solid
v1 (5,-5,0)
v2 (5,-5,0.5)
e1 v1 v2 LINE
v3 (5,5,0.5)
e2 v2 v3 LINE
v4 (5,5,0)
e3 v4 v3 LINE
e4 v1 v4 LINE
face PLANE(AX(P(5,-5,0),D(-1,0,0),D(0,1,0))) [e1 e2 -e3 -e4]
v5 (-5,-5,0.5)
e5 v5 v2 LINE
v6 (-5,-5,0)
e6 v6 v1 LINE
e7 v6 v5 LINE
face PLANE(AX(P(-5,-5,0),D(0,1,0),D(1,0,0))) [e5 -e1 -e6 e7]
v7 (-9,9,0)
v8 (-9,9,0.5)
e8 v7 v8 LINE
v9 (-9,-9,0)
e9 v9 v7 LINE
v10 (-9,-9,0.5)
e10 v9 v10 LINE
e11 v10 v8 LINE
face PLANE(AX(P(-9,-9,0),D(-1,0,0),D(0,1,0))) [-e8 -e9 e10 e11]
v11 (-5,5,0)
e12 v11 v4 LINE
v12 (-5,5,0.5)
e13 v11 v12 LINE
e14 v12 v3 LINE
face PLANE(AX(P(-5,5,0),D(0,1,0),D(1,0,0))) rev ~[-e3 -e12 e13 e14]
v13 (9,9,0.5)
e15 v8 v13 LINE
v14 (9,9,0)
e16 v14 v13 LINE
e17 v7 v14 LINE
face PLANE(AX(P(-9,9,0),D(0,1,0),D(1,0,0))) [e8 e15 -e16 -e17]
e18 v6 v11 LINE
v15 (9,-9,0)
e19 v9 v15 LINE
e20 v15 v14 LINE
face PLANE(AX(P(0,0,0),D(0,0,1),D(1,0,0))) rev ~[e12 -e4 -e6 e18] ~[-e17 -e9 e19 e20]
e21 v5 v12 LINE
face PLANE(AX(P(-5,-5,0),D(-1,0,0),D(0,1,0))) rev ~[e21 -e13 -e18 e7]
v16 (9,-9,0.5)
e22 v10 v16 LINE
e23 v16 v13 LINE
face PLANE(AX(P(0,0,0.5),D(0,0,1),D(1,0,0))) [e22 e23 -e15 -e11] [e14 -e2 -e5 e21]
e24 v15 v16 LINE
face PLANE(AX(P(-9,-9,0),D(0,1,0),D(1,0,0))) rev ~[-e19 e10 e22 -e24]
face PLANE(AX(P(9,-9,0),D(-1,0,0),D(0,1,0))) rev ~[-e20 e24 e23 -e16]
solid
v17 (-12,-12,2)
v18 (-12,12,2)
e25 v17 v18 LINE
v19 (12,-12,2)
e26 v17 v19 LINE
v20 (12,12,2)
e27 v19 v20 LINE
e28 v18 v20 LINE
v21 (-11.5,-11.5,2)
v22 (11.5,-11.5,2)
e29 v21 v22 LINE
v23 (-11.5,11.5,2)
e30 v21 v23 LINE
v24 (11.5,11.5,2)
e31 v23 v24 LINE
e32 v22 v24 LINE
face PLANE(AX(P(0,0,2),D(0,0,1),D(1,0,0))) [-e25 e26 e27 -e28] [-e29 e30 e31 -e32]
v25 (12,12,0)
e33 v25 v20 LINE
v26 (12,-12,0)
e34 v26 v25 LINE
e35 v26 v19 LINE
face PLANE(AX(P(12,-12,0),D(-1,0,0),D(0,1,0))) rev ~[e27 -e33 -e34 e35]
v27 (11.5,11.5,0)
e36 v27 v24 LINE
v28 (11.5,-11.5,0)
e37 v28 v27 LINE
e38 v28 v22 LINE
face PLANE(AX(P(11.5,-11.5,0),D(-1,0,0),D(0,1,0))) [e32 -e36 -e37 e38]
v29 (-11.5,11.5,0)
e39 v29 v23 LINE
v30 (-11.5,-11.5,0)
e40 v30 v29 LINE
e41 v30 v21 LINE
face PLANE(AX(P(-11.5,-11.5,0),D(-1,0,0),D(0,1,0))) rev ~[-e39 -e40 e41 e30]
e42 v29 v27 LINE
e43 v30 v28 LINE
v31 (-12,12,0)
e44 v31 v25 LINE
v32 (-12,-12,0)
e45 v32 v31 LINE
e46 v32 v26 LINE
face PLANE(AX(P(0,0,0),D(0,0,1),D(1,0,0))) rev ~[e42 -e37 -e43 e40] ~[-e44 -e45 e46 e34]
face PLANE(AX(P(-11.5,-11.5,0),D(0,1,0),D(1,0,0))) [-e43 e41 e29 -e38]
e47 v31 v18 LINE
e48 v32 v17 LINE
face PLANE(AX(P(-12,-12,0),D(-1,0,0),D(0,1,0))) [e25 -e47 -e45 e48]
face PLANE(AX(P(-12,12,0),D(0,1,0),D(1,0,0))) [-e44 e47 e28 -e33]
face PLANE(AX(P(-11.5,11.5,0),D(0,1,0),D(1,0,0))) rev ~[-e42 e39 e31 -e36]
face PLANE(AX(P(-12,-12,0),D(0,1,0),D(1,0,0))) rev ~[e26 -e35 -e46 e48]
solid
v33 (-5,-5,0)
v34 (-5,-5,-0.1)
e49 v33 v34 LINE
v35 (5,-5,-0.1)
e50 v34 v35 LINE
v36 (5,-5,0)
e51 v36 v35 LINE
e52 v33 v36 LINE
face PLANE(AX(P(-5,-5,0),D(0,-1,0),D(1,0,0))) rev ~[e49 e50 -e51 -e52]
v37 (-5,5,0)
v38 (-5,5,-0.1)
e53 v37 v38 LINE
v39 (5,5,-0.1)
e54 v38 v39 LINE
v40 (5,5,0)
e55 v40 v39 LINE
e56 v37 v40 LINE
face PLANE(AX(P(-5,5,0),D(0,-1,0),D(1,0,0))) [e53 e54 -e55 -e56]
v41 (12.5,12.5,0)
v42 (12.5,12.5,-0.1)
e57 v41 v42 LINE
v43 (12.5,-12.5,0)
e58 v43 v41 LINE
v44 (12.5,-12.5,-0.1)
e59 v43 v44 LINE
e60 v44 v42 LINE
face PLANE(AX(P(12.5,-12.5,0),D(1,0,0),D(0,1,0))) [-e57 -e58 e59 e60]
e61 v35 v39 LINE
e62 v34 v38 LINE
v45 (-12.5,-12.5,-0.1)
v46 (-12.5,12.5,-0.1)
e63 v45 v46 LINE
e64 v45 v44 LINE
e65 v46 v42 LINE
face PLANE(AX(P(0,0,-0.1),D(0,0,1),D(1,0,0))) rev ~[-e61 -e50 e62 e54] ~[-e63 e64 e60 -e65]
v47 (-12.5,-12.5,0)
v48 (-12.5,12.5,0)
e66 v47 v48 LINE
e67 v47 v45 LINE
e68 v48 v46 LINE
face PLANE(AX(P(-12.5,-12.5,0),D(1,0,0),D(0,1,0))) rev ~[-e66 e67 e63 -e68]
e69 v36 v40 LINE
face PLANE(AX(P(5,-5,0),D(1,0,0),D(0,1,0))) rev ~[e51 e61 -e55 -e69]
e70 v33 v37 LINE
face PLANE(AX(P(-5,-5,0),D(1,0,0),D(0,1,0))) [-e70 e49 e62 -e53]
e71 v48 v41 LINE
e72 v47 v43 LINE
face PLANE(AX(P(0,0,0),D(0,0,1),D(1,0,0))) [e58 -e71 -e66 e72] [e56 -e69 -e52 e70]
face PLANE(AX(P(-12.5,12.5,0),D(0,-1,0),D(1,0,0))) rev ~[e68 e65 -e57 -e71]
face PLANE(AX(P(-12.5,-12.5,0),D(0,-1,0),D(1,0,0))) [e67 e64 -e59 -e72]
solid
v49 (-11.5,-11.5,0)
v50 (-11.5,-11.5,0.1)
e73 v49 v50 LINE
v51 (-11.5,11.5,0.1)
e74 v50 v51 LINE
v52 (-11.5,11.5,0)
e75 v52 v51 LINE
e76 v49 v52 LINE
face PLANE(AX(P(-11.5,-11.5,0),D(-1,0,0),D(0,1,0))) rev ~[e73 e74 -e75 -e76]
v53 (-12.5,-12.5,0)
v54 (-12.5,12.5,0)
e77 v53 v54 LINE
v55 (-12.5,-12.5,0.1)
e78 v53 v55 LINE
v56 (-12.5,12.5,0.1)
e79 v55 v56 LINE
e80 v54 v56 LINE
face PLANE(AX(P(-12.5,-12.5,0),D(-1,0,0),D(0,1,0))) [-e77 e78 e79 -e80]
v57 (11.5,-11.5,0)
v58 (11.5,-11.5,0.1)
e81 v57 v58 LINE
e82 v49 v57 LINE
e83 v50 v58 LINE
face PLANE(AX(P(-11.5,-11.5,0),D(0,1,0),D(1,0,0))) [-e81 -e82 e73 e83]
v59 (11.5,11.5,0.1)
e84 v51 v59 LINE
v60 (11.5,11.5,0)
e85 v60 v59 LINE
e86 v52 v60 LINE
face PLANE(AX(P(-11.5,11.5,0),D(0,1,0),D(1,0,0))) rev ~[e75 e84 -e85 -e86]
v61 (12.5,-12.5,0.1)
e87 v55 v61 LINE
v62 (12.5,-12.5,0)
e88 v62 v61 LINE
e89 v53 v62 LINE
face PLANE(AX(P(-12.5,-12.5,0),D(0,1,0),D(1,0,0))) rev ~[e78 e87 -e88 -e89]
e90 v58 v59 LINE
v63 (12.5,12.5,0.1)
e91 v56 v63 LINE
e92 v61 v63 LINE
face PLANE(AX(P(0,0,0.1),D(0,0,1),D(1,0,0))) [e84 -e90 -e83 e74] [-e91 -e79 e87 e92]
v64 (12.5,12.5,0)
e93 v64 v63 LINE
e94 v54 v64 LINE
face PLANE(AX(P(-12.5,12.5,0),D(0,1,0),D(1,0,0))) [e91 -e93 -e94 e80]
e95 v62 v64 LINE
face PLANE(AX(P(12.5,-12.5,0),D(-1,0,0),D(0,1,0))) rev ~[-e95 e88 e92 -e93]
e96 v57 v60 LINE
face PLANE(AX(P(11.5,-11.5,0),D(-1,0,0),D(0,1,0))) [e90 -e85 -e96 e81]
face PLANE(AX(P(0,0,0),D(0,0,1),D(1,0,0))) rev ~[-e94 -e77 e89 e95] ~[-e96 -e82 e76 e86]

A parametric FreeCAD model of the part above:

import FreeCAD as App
import Part
import Sketcher
from FreeCAD import Vector

doc = App.newDocument("Part")
body = doc.addObject("PartDesign::Body", "Body")

sketch1 = body.newObject("Sketcher::SketchObject", "Sketch")
sketch1.AttachmentSupport = (doc.getObject("XY_Plane"), [""])
sketch1.MapMode = "FlatFace"
sketch1.addGeometry([
    Part.LineSegment(Vector(-9, 9, 0), Vector(-9, -9, 0)),
    Part.LineSegment(Vector(-9, -9, 0), Vector(9, -9, 0)),
    Part.LineSegment(Vector(9, -9, 0), Vector(9, 9, 0)),
    Part.LineSegment(Vector(9, 9, 0), Vector(-9, 9, 0)),
    Part.LineSegment(Vector(5, -5, 0), Vector(-5, -5, 0)),
    Part.LineSegment(Vector(-5, -5, 0), Vector(-5, 5, 0)),
    Part.LineSegment(Vector(-5, 5, 0), Vector(5, 5, 0)),
    Part.LineSegment(Vector(5, 5, 0), Vector(5, -5, 0)),
], False)
sketch1.addConstraint([
    Sketcher.Constraint("Coincident", 0, 2, 1, 1),
    Sketcher.Constraint("Coincident", 1, 2, 2, 1),
    Sketcher.Constraint("Coincident", 2, 2, 3, 1),
    Sketcher.Constraint("Coincident", 3, 2, 0, 1),
    Sketcher.Constraint("Coincident", 4, 2, 5, 1),
    Sketcher.Constraint("Coincident", 5, 2, 6, 1),
    Sketcher.Constraint("Coincident", 6, 2, 7, 1),
    Sketcher.Constraint("Coincident", 7, 2, 4, 1),
    Sketcher.Constraint("Vertical", 0),
    Sketcher.Constraint("Horizontal", 1),
    Sketcher.Constraint("Vertical", 2),
    Sketcher.Constraint("Horizontal", 3),
    Sketcher.Constraint("Horizontal", 4),
    Sketcher.Constraint("Vertical", 5),
    Sketcher.Constraint("Horizontal", 6),
    Sketcher.Constraint("Vertical", 7),
    Sketcher.Constraint("Symmetric", 0, 2, 2, 2, -1, 1),
    Sketcher.Constraint("Symmetric", 4, 2, 6, 2, -1, 1),
    Sketcher.Constraint("Equal", 3, 0),
    Sketcher.Constraint("Equal", 6, 5),
    Sketcher.Constraint("DistanceX", 1, 1, 1, 2, 18.0),
    Sketcher.Constraint("DistanceX", 4, 2, 4, 1, 10.0),
])
pad1 = body.newObject("PartDesign::Pad", "Pad")
pad1.Profile = sketch1
pad1.Length = 0.5
body2 = doc.addObject("PartDesign::Body", "Body001")

sketch2 = body2.newObject("Sketcher::SketchObject", "Sketch001")
sketch2.AttachmentSupport = (doc.getObject("XY_Plane001"), [""])
sketch2.MapMode = "FlatFace"
sketch2.addGeometry([
    Part.LineSegment(Vector(-12.5, 12.5, 0), Vector(-12.5, -12.5, 0)),
    Part.LineSegment(Vector(-12.5, -12.5, 0), Vector(12.5, -12.5, 0)),
    Part.LineSegment(Vector(12.5, -12.5, 0), Vector(12.5, 12.5, 0)),
    Part.LineSegment(Vector(12.5, 12.5, 0), Vector(-12.5, 12.5, 0)),
    Part.LineSegment(Vector(11.5, -11.5, 0), Vector(-11.5, -11.5, 0)),
    Part.LineSegment(Vector(-11.5, -11.5, 0), Vector(-11.5, 11.5, 0)),
    Part.LineSegment(Vector(-11.5, 11.5, 0), Vector(11.5, 11.5, 0)),
    Part.LineSegment(Vector(11.5, 11.5, 0), Vector(11.5, -11.5, 0)),
], False)
sketch2.addConstraint([
    Sketcher.Constraint("Coincident", 0, 2, 1, 1),
    Sketcher.Constraint("Coincident", 1, 2, 2, 1),
    Sketcher.Constraint("Coincident", 2, 2, 3, 1),
    Sketcher.Constraint("Coincident", 3, 2, 0, 1),
    Sketcher.Constraint("Coincident", 4, 2, 5, 1),
    Sketcher.Constraint("Coincident", 5, 2, 6, 1),
    Sketcher.Constraint("Coincident", 6, 2, 7, 1),
    Sketcher.Constraint("Coincident", 7, 2, 4, 1),
    Sketcher.Constraint("Vertical", 0),
    Sketcher.Constraint("Horizontal", 1),
    Sketcher.Constraint("Vertical", 2),
    Sketcher.Constraint("Horizontal", 3),
    Sketcher.Constraint("Horizontal", 4),
    Sketcher.Constraint("Vertical", 5),
    Sketcher.Constraint("Horizontal", 6),
    Sketcher.Constraint("Vertical", 7),
    Sketcher.Constraint("Symmetric", 0, 2, 2, 2, -1, 1),
    Sketcher.Constraint("Symmetric", 4, 2, 6, 2, -1, 1),
    Sketcher.Constraint("Equal", 3, 0),
    Sketcher.Constraint("Equal", 6, 5),
    Sketcher.Constraint("DistanceX", 1, 1, 1, 2, 25.0),
    Sketcher.Constraint("DistanceX", 4, 2, 4, 1, 23.0),
])
pad2 = body2.newObject("PartDesign::Pad", "Pad001")
pad2.Profile = sketch2
pad2.Length = 0.1
body3 = doc.addObject("PartDesign::Body", "Body002")

sketch3 = body3.newObject("Sketcher::SketchObject", "Sketch002")
sketch3.AttachmentSupport = (doc.getObject("XY_Plane002"), [""])
sketch3.MapMode = "FlatFace"
sketch3.addGeometry([
    Part.LineSegment(Vector(-12.5, 12.5, 0), Vector(-12.5, -12.5, 0)),
    Part.LineSegment(Vector(-12.5, -12.5, 0), Vector(12.5, -12.5, 0)),
    Part.LineSegment(Vector(12.5, -12.5, 0), Vector(12.5, 12.5, 0)),
    Part.LineSegment(Vector(12.5, 12.5, 0), Vector(-12.5, 12.5, 0)),
    Part.LineSegment(Vector(5, -5, 0), Vector(-5, -5, 0)),
    Part.LineSegment(Vector(-5, -5, 0), Vector(-5, 5, 0)),
    Part.LineSegment(Vector(-5, 5, 0), Vector(5, 5, 0)),
    Part.LineSegment(Vector(5, 5, 0), Vector(5, -5, 0)),
], False)
sketch3.addConstraint([
    Sketcher.Constraint("Coincident", 0, 2, 1, 1),
    Sketcher.Constraint("Coincident", 1, 2, 2, 1),
    Sketcher.Constraint("Coincident", 2, 2, 3, 1),
    Sketcher.Constraint("Coincident", 3, 2, 0, 1),
    Sketcher.Constraint("Coincident", 4, 2, 5, 1),
    Sketcher.Constraint("Coincident", 5, 2, 6, 1),
    Sketcher.Constraint("Coincident", 6, 2, 7, 1),
    Sketcher.Constraint("Coincident", 7, 2, 4, 1),
    Sketcher.Constraint("Vertical", 0),
    Sketcher.Constraint("Horizontal", 1),
    Sketcher.Constraint("Vertical", 2),
    Sketcher.Constraint("Horizontal", 3),
    Sketcher.Constraint("Horizontal", 4),
    Sketcher.Constraint("Vertical", 5),
    Sketcher.Constraint("Horizontal", 6),
    Sketcher.Constraint("Vertical", 7),
    Sketcher.Constraint("Symmetric", 0, 2, 2, 2, -1, 1),
    Sketcher.Constraint("Symmetric", 4, 2, 6, 2, -1, 1),
    Sketcher.Constraint("Equal", 3, 0),
    Sketcher.Constraint("Equal", 6, 5),
    Sketcher.Constraint("DistanceX", 1, 1, 1, 2, 25.0),
    Sketcher.Constraint("DistanceX", 4, 2, 4, 1, 10.0),
])
pad3 = body3.newObject("PartDesign::Pad", "Pad002")
pad3.Profile = sketch3
pad3.Length = 0.1
pad3.Reversed = True
body4 = doc.addObject("PartDesign::Body", "Body003")

sketch4 = body4.newObject("Sketcher::SketchObject", "Sketch003")
sketch4.AttachmentSupport = (doc.getObject("XY_Plane003"), [""])
sketch4.MapMode = "FlatFace"
sketch4.addGeometry([
    Part.LineSegment(Vector(-12, 12, 0), Vector(-12, -12, 0)),
    Part.LineSegment(Vector(-12, -12, 0), Vector(12, -12, 0)),
    Part.LineSegment(Vector(12, -12, 0), Vector(12, 12, 0)),
    Part.LineSegment(Vector(12, 12, 0), Vector(-12, 12, 0)),
    Part.LineSegment(Vector(11.5, -11.5, 0), Vector(-11.5, -11.5, 0)),
    Part.LineSegment(Vector(-11.5, -11.5, 0), Vector(-11.5, 11.5, 0)),
    Part.LineSegment(Vector(-11.5, 11.5, 0), Vector(11.5, 11.5, 0)),
    Part.LineSegment(Vector(11.5, 11.5, 0), Vector(11.5, -11.5, 0)),
], False)
sketch4.addConstraint([
    Sketcher.Constraint("Coincident", 0, 2, 1, 1),
    Sketcher.Constraint("Coincident", 1, 2, 2, 1),
    Sketcher.Constraint("Coincident", 2, 2, 3, 1),
    Sketcher.Constraint("Coincident", 3, 2, 0, 1),
    Sketcher.Constraint("Coincident", 4, 2, 5, 1),
    Sketcher.Constraint("Coincident", 5, 2, 6, 1),
    Sketcher.Constraint("Coincident", 6, 2, 7, 1),
    Sketcher.Constraint("Coincident", 7, 2, 4, 1),
    Sketcher.Constraint("Vertical", 0),
    Sketcher.Constraint("Horizontal", 1),
    Sketcher.Constraint("Vertical", 2),
    Sketcher.Constraint("Horizontal", 3),
    Sketcher.Constraint("Horizontal", 4),
    Sketcher.Constraint("Vertical", 5),
    Sketcher.Constraint("Horizontal", 6),
    Sketcher.Constraint("Vertical", 7),
    Sketcher.Constraint("Symmetric", 0, 2, 2, 2, -1, 1),
    Sketcher.Constraint("Symmetric", 4, 2, 6, 2, -1, 1),
    Sketcher.Constraint("Equal", 3, 0),
    Sketcher.Constraint("Equal", 6, 5),
    Sketcher.Constraint("DistanceX", 1, 1, 1, 2, 24.0),
    Sketcher.Constraint("DistanceX", 4, 2, 4, 1, 23.0),
])
pad4 = body4.newObject("PartDesign::Pad", "Pad003")
pad4.Profile = sketch4
pad4.Length = 2

doc.recompute()
